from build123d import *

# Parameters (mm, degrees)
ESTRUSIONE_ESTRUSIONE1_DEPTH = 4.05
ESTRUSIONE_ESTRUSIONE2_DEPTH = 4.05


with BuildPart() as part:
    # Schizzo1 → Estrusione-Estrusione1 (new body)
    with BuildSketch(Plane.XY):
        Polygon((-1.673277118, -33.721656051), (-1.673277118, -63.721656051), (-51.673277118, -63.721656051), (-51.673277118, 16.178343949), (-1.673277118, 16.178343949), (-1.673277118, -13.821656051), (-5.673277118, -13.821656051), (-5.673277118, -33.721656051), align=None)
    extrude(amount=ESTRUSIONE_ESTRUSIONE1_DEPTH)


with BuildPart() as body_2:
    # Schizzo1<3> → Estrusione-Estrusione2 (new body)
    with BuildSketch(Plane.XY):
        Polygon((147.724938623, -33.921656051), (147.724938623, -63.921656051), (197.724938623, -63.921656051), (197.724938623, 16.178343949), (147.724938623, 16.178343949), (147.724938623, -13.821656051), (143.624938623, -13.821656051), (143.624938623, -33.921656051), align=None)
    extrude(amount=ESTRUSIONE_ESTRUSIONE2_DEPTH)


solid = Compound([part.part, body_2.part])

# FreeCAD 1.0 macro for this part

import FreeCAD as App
import Part
import Sketcher
Q = App.Units.Quantity


def add_polygon(sketch, points):
    """Adds a closed chain of lines whose ends are joined by coincident constraints."""
    first, n = sketch.GeometryCount, len(points)
    for a, b in zip(points, points[1:] + points[:1]):
        sketch.addGeometry(Part.LineSegment(App.Vector(*a, 0), App.Vector(*b, 0)), False)
    for i in range(n):
        sketch.addConstraint(Sketcher.Constraint("Coincident", first + i, 2, first + (i + 1) % n, 1))

doc = App.newDocument("Part")
body = doc.addObject("PartDesign::Body", "Body")

# Sketch on XY plane
sketch1 = body.newObject("Sketcher::SketchObject", "Sketch")
sketch1.AttachmentSupport = (doc.getObject("XY_Plane"), [""])
sketch1.MapMode = "FlatFace"
add_polygon(sketch1, [(-1.7, -63.7), (-1.7, -33.7), (-5.7, -33.7), (-5.7, -13.8), (-1.7, -13.8), (-1.7, 16.2), (-51.7, 16.2), (-51.7, -63.7)])  # lines 0-7
sketch1.addConstraint([
    Sketcher.Constraint("Vertical", 0),
    Sketcher.Constraint("Horizontal", 1),
    Sketcher.Constraint("Vertical", 2),
    Sketcher.Constraint("Horizontal", 3),
    Sketcher.Constraint("Vertical", 4),
    Sketcher.Constraint("Horizontal", 5),
    Sketcher.Constraint("Vertical", 6),
    Sketcher.Constraint("Horizontal", 7),
    Sketcher.Constraint("Vertical", 0, 2, 3, 2),
    Sketcher.Constraint("Equal", 0, 4),
    Sketcher.Constraint("DistanceX", 1, 2, 1, 1, Q("4 mm")),
    Sketcher.Constraint("DistanceX", 5, 2, 5, 1, Q("50 mm")),
    Sketcher.Constraint("DistanceY", 0, 1, 0, 2, Q("30 mm")),
    Sketcher.Constraint("DistanceY", 2, 1, 2, 2, Q("19.9 mm")),
    Sketcher.Constraint("DistanceX", 0, 2, -1, 1, Q("1.673277 mm")),
    Sketcher.Constraint("DistanceY", 0, 2, -1, 1, Q("33.721656 mm")),
])
pad1 = body.newObject("PartDesign::Pad", "Pad")
pad1.Profile = sketch1
pad1.Length = 4.05
body2 = doc.addObject("PartDesign::Body", "Body001")

# Sketch on XY plane
sketch2 = body2.newObject("Sketcher::SketchObject", "Sketch001")
sketch2.AttachmentSupport = (doc.getObject("XY_Plane001"), [""])
sketch2.MapMode = "FlatFace"
add_polygon(sketch2, [(147.7, -33.9), (147.7, -63.9), (197.7, -63.9), (197.7, 16.2), (147.7, 16.2), (147.7, -13.8), (143.6, -13.8), (143.6, -33.9)])  # lines 0-7
sketch2.addConstraint([
    Sketcher.Constraint("Vertical", 0),
    Sketcher.Constraint("Horizontal", 1),
    Sketcher.Constraint("Vertical", 2),
    Sketcher.Constraint("Horizontal", 3),
    Sketcher.Constraint("Vertical", 4),
    Sketcher.Constraint("Horizontal", 5),
    Sketcher.Constraint("Vertical", 6),
    Sketcher.Constraint("Horizontal", 7),
    Sketcher.Constraint("Vertical", 0, 2, 3, 2),
    Sketcher.Constraint("Equal", 0, 4),
    Sketcher.Constraint("DistanceX", 1, 1, 1, 2, Q("50 mm")),
    Sketcher.Constraint("DistanceY", 0, 2, 0, 1, Q("30 mm")),
    Sketcher.Constraint("DistanceX", 5, 2, 5, 1, Q("4.1 mm")),
    Sketcher.Constraint("DistanceY", 2, 1, 2, 2, Q("80.1 mm")),
    Sketcher.Constraint("DistanceX", -1, 1, 0, 2, Q("147.724939 mm")),
    Sketcher.Constraint("DistanceY", 0, 2, -1, 1, Q("63.921656 mm")),
])
pad2 = body2.newObject("PartDesign::Pad", "Pad001")
pad2.Profile = sketch2
pad2.Length = 4.05

doc.recompute()
